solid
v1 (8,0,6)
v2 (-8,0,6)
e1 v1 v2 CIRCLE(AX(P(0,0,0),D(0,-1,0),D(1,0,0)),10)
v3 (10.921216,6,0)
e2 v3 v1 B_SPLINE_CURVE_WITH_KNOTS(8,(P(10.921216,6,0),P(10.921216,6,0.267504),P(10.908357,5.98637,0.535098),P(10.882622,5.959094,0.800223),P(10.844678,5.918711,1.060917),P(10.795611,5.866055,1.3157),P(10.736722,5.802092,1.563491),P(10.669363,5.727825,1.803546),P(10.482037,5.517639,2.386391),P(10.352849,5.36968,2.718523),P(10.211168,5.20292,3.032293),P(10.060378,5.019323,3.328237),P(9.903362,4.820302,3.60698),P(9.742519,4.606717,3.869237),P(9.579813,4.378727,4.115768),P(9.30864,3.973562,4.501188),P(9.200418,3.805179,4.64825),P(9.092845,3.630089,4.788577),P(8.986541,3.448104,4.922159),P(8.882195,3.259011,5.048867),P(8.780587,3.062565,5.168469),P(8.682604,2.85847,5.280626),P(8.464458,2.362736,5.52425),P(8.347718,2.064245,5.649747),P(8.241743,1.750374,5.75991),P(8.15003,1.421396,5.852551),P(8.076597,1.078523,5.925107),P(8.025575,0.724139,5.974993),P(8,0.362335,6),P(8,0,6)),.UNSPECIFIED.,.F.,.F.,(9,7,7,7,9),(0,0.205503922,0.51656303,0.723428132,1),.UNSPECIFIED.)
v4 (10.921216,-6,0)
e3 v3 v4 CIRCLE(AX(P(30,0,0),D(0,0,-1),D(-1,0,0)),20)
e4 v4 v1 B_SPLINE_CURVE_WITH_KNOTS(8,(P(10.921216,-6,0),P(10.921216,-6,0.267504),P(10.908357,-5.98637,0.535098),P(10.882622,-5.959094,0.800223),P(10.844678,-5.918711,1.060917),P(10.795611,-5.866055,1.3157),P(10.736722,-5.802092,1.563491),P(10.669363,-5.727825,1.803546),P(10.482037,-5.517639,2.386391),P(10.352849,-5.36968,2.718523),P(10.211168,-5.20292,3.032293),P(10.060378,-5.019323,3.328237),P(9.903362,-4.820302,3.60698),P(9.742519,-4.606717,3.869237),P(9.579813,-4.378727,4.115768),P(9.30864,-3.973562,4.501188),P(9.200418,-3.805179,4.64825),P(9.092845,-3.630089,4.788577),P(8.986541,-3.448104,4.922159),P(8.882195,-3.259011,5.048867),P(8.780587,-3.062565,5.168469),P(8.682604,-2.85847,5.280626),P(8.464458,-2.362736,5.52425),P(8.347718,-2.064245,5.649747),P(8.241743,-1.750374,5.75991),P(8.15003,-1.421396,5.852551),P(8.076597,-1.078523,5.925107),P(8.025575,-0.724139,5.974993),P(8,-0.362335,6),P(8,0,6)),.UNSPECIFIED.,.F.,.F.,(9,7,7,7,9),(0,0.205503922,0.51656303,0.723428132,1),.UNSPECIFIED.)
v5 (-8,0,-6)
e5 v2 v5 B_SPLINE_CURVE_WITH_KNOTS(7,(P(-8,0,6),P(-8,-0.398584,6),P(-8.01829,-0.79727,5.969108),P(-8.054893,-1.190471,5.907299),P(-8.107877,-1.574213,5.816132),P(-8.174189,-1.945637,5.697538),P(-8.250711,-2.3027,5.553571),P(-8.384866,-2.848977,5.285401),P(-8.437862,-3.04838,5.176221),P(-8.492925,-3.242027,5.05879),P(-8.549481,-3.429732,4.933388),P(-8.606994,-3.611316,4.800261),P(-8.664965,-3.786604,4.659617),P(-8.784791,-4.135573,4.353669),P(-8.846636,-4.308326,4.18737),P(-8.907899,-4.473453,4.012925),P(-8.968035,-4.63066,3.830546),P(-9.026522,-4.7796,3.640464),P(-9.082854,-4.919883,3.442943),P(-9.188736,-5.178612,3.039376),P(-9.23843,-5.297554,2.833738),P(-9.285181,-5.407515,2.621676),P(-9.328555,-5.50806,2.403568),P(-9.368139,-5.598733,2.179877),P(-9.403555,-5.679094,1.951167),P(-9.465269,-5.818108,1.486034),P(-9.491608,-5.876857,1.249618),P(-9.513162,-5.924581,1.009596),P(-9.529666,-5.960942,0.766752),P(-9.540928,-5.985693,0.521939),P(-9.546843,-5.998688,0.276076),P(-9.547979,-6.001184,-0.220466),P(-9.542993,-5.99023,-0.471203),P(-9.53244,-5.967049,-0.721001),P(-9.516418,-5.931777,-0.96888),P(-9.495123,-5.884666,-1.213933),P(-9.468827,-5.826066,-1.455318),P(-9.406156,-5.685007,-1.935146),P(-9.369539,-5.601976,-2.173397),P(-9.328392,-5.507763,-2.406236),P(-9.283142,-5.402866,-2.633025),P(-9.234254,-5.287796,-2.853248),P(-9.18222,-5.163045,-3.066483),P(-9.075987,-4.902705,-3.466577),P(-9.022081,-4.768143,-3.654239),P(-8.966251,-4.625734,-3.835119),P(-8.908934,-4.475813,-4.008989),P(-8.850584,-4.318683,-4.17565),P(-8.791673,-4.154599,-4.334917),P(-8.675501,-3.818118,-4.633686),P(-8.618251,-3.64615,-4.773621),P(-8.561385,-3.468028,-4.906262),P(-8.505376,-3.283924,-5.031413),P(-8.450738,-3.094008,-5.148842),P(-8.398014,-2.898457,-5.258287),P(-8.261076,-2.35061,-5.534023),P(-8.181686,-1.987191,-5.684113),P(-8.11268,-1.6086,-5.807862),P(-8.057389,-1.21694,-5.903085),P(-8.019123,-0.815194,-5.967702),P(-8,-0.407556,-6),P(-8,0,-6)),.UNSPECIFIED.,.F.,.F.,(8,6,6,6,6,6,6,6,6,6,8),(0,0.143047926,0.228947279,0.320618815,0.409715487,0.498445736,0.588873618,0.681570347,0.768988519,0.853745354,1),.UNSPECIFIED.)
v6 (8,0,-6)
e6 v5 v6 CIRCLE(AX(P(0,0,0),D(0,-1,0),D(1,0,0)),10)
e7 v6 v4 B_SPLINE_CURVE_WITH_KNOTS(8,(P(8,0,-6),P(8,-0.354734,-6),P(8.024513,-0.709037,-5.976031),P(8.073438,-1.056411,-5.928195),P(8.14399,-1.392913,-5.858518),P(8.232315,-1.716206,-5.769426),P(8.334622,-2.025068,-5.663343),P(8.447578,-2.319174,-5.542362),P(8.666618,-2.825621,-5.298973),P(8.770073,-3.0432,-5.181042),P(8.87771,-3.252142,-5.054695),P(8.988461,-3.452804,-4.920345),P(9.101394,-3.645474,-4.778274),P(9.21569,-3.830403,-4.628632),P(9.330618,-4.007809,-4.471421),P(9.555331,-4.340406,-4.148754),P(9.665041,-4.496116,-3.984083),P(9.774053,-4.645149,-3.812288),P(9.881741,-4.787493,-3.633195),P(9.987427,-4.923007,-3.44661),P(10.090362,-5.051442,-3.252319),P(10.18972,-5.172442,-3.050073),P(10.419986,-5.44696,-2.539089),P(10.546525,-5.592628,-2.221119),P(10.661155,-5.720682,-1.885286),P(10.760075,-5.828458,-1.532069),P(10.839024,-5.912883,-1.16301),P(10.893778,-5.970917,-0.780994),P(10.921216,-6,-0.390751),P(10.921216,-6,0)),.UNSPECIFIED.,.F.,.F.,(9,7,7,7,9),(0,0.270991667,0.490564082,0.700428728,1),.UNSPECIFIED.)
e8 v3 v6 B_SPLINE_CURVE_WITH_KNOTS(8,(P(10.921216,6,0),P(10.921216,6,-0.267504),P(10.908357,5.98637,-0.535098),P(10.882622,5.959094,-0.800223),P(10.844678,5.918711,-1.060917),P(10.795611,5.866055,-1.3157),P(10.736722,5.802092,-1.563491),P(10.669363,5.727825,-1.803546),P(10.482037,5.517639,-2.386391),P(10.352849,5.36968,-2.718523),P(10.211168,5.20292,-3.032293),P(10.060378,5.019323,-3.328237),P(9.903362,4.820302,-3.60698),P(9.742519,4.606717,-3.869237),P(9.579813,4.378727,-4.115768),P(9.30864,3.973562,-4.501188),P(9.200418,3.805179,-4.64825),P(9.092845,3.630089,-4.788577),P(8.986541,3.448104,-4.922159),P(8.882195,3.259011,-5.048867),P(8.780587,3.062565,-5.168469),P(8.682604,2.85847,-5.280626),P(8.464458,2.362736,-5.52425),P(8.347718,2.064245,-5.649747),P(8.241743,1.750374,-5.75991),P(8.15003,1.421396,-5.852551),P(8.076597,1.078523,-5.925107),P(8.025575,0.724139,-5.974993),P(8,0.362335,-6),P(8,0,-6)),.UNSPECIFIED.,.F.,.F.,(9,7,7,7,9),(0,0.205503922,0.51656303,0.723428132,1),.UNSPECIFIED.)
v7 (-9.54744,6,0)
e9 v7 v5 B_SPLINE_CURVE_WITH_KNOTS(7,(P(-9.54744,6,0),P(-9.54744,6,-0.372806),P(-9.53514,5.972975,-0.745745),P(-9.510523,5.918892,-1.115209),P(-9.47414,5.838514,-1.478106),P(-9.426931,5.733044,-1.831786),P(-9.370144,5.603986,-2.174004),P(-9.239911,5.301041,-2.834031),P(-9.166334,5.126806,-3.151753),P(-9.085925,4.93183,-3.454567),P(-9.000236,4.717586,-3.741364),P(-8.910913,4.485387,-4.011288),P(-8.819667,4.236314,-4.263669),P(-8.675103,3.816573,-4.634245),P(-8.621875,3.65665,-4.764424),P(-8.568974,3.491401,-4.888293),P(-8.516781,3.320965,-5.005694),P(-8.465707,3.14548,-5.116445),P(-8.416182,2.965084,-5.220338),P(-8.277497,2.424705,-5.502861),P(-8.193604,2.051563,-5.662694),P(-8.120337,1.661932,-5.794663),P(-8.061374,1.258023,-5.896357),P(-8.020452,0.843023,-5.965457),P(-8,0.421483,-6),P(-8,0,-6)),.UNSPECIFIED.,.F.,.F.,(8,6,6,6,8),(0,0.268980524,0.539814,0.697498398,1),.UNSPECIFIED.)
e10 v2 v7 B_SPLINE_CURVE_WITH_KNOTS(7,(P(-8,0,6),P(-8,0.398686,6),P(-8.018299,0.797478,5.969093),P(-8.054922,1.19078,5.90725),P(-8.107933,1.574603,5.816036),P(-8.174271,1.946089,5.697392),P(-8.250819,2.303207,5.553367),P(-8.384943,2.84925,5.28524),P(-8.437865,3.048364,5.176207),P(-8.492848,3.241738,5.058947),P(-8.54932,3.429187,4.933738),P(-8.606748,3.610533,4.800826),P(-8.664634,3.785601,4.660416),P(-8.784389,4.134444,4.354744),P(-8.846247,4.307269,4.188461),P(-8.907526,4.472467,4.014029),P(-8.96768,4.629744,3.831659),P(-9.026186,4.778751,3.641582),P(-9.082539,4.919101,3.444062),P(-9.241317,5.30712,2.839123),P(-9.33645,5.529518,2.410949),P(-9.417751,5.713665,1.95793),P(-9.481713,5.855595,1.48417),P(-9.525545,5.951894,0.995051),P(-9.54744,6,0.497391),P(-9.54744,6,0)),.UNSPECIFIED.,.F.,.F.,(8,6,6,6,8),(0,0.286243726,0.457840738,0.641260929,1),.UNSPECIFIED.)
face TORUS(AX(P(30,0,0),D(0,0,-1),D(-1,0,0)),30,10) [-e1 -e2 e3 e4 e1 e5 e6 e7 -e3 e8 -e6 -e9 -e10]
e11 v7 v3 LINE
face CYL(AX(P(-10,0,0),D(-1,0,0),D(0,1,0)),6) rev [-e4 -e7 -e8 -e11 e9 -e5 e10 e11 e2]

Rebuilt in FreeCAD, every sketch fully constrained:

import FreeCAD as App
import Part
import Sketcher
from FreeCAD import Vector

doc = App.newDocument("Part")
body = doc.addObject("PartDesign::Body", "Body")

sketch1 = body.newObject("Sketcher::SketchObject", "Sketch")
sketch1.AttachmentSupport = (doc.getObject("XZ_Plane"), [""])
sketch1.MapMode = "FlatFace"
sketch1.addGeometry(Part.Circle(Vector(0, 0, 0), Vector(0, 0, 1), 10), False)
sketch1.addGeometry(Part.LineSegment(Vector(30, 0, 0), Vector(30, -10, 0)), True)
sketch1.addConstraint(Sketcher.Constraint("Vertical", 1))
sketch1.addConstraint(Sketcher.Constraint("Coincident", 0, 3, -1, 1))
sketch1.addConstraint(Sketcher.Constraint("PointOnObject", 1, 1, -1))
sketch1.addConstraint(Sketcher.Constraint("Diameter", 0, 20.0))
sketch1.addConstraint(Sketcher.Constraint("DistanceY", 1, 2, 1, 1, 10.0))
sketch1.addConstraint(Sketcher.Constraint("DistanceX", -1, 1, 1, 1, 30.0))
revolution = body.newObject("PartDesign::Revolution", "Revolution")
revolution.Profile = sketch1
revolution.ReferenceAxis = (sketch1, ["Axis0"])
revolution.Angle = 360

sketch2 = body.newObject("Sketcher::SketchObject", "Sketch001")
sketch2.AttachmentSupport = (doc.getObject("YZ_Plane"), [""])
sketch2.MapMode = "FlatFace"
sketch2.AttachmentOffset = App.Placement(Vector(0, 0, -10), App.Rotation())
sketch2.addGeometry(Part.Circle(Vector(0, 0, 0), Vector(0, 0, 1), 6), False)
sketch2.addConstraint(Sketcher.Constraint("Coincident", 0, 3, -1, 1))
sketch2.addConstraint(Sketcher.Constraint("Diameter", 0, 12.0))
pocket1 = body.newObject("PartDesign::Pocket", "Pocket")
pocket1.Profile = sketch2
pocket1.Length = 25
pocket1.Reversed = True

doc.recompute()
